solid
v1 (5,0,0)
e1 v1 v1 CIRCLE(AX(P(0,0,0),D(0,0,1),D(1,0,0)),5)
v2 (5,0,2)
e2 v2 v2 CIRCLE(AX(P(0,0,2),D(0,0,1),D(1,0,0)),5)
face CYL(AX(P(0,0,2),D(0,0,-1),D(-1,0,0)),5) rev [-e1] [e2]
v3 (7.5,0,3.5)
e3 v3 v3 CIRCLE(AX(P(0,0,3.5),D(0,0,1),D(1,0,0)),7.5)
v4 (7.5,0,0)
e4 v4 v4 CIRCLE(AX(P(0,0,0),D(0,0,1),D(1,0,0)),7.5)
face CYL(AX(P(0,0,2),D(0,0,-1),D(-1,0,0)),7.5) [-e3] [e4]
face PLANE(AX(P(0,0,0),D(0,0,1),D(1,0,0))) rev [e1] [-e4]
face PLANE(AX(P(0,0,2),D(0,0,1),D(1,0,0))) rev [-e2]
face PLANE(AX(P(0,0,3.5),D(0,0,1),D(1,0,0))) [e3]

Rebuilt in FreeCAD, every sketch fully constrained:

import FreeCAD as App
import Part
import Sketcher
from FreeCAD import Vector

doc = App.newDocument("Part")
body = doc.addObject("PartDesign::Body", "Body")

sketch1 = body.newObject("Sketcher::SketchObject", "Sketch")
sketch1.AttachmentSupport = (doc.getObject("XY_Plane"), [""])
sketch1.MapMode = "FlatFace"
sketch1.addGeometry(Part.Circle(Vector(0, 0, 0), Vector(0, 0, 1), 8), False)
sketch1.addGeometry(Part.Circle(Vector(0, 0, 0), Vector(0, 0, 1), 5), False)
sketch1.addConstraint(Sketcher.Constraint("Coincident", 0, 3, -1, 1))
sketch1.addConstraint(Sketcher.Constraint("Coincident", 1, 3, -1, 1))
sketch1.addConstraint(Sketcher.Constraint("Diameter", 0, 15.0))
sketch1.addConstraint(Sketcher.Constraint("Diameter", 1, 10.0))
pad1 = body.newObject("PartDesign::Pad", "Pad")
pad1.Profile = sketch1
pad1.Length = 2

sketch2 = body.newObject("Sketcher::SketchObject", "Sketch001")
sketch2.AttachmentSupport = (doc.getObject("XY_Plane"), [""])
sketch2.MapMode = "FlatFace"
sketch2.AttachmentOffset = App.Placement(Vector(0, 0, 2), App.Rotation())
sketch2.addGeometry(Part.Circle(Vector(0, 0, 0), Vector(0, 0, 1), 8), False)
sketch2.addConstraint(Sketcher.Constraint("Coincident", 0, 3, -1, 1))
sketch2.addConstraint(Sketcher.Constraint("Diameter", 0, 15.0))
pad2 = body.newObject("PartDesign::Pad", "Pad001")
pad2.Profile = sketch2
pad2.Length = 1.5

doc.recompute()
